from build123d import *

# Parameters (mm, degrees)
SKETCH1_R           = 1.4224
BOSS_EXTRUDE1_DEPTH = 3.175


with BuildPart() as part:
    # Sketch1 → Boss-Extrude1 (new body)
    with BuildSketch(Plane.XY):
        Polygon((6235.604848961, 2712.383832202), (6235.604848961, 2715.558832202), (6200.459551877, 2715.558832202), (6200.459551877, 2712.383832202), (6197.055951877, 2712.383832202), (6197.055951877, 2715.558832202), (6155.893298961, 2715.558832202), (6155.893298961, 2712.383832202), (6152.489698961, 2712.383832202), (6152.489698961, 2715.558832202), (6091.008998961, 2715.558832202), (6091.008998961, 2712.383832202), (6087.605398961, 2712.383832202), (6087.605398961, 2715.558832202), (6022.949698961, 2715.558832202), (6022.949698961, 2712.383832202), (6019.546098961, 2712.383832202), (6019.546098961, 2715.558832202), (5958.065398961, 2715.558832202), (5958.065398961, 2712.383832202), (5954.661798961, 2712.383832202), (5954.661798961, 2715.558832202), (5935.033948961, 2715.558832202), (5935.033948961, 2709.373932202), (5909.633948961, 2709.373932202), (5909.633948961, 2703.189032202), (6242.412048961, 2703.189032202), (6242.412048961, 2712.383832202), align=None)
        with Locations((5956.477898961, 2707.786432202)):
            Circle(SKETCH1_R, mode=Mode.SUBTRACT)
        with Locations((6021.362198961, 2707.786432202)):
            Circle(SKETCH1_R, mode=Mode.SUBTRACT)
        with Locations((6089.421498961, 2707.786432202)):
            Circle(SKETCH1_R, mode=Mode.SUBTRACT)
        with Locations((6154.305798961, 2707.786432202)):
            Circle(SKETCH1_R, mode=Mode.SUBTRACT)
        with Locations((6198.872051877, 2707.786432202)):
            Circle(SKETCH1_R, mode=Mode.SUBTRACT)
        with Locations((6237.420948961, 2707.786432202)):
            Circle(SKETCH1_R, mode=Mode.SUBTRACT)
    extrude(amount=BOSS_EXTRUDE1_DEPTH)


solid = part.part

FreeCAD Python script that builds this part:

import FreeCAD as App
import Part
import Sketcher
Q = App.Units.Quantity

doc = App.newDocument("Part")
body = doc.addObject("PartDesign::Body", "Body")

# Sketch on XY plane
sketch1 = body.newObject("Sketcher::SketchObject", "Sketch")
sketch1.AttachmentSupport = (doc.getObject("XY_Plane"), [""])
sketch1.MapMode = "FlatFace"
sketch1.addGeometry(Part.LineSegment(App.Vector(6235.6, 2712.4, 0), App.Vector(6235.6, 2715.6, 0)), False)
sketch1.addGeometry(Part.LineSegment(App.Vector(6235.6, 2715.6, 0), App.Vector(6200.5, 2715.6, 0)), False)
sketch1.addGeometry(Part.LineSegment(App.Vector(6200.5, 2715.6, 0), App.Vector(6200.5, 2712.4, 0)), False)
sketch1.addGeometry(Part.LineSegment(App.Vector(6200.5, 2712.4, 0), App.Vector(6197.1, 2712.4, 0)), False)
sketch1.addGeometry(Part.LineSegment(App.Vector(6197.1, 2712.4, 0), App.Vector(6197.1, 2715.6, 0)), False)
sketch1.addGeometry(Part.LineSegment(App.Vector(6197.1, 2715.6, 0), App.Vector(6155.9, 2715.6, 0)), False)
sketch1.addGeometry(Part.LineSegment(App.Vector(6155.9, 2715.6, 0), App.Vector(6155.9, 2712.4, 0)), False)
sketch1.addGeometry(Part.LineSegment(App.Vector(6155.9, 2712.4, 0), App.Vector(6152.5, 2712.4, 0)), False)
sketch1.addGeometry(Part.LineSegment(App.Vector(6152.5, 2712.4, 0), App.Vector(6152.5, 2715.6, 0)), False)
sketch1.addGeometry(Part.LineSegment(App.Vector(6152.5, 2715.6, 0), App.Vector(6091, 2715.6, 0)), False)
sketch1.addGeometry(Part.LineSegment(App.Vector(6091, 2715.6, 0), App.Vector(6091, 2712.4, 0)), False)
sketch1.addGeometry(Part.LineSegment(App.Vector(6091, 2712.4, 0), App.Vector(6087.6, 2712.4, 0)), False)
sketch1.addGeometry(Part.LineSegment(App.Vector(6087.6, 2712.4, 0), App.Vector(6087.6, 2715.6, 0)), False)
sketch1.addGeometry(Part.LineSegment(App.Vector(6087.6, 2715.6, 0), App.Vector(6022.9, 2715.6, 0)), False)
sketch1.addGeometry(Part.LineSegment(App.Vector(6022.9, 2715.6, 0), App.Vector(6022.9, 2712.4, 0)), False)
sketch1.addGeometry(Part.LineSegment(App.Vector(6022.9, 2712.4, 0), App.Vector(6019.5, 2712.4, 0)), False)
sketch1.addGeometry(Part.LineSegment(App.Vector(6019.5, 2712.4, 0), App.Vector(6019.5, 2715.6, 0)), False)
sketch1.addGeometry(Part.LineSegment(App.Vector(6019.5, 2715.6, 0), App.Vector(5958.1, 2715.6, 0)), False)
sketch1.addGeometry(Part.LineSegment(App.Vector(5958.1, 2715.6, 0), App.Vector(5958.1, 2712.4, 0)), False)
sketch1.addGeometry(Part.LineSegment(App.Vector(5958.1, 2712.4, 0), App.Vector(5954.7, 2712.4, 0)), False)
sketch1.addGeometry(Part.LineSegment(App.Vector(5954.7, 2712.4, 0), App.Vector(5954.7, 2715.6, 0)), False)
sketch1.addGeometry(Part.LineSegment(App.Vector(5954.7, 2715.6, 0), App.Vector(5935, 2715.6, 0)), False)
sketch1.addGeometry(Part.LineSegment(App.Vector(5935, 2715.6, 0), App.Vector(5935, 2709.4, 0)), False)
sketch1.addGeometry(Part.LineSegment(App.Vector(5935, 2709.4, 0), App.Vector(5909.6, 2709.4, 0)), False)
sketch1.addGeometry(Part.LineSegment(App.Vector(5909.6, 2709.4, 0), App.Vector(5909.6, 2703.2, 0)), False)
sketch1.addGeometry(Part.LineSegment(App.Vector(5909.6, 2703.2, 0), App.Vector(6242.4, 2703.2, 0)), False)
sketch1.addGeometry(Part.LineSegment(App.Vector(6242.4, 2703.2, 0), App.Vector(6242.4, 2712.4, 0)), False)
sketch1.addGeometry(Part.LineSegment(App.Vector(6242.4, 2712.4, 0), App.Vector(6235.6, 2712.4, 0)), False)
sketch1.addGeometry(Part.Circle(App.Vector(5956.5, 2707.8, 0), App.Vector(0, 0, 1), 1.4), False)
sketch1.addGeometry(Part.Circle(App.Vector(6021.4, 2707.8, 0), App.Vector(0, 0, 1), 1.4), False)
sketch1.addGeometry(Part.Circle(App.Vector(6089.4, 2707.8, 0), App.Vector(0, 0, 1), 1.4), False)
sketch1.addGeometry(Part.Circle(App.Vector(6154.3, 2707.8, 0), App.Vector(0, 0, 1), 1.4), False)
sketch1.addGeometry(Part.Circle(App.Vector(6198.9, 2707.8, 0), App.Vector(0, 0, 1), 1.4), False)
sketch1.addGeometry(Part.Circle(App.Vector(6237.4, 2707.8, 0), App.Vector(0, 0, 1), 1.4), False)
sketch1.addConstraint(Sketcher.Constraint("Coincident", 0, 2, 1, 1))
sketch1.addConstraint(Sketcher.Constraint("Coincident", 1, 2, 2, 1))
sketch1.addConstraint(Sketcher.Constraint("Coincident", 2, 2, 3, 1))
sketch1.addConstraint(Sketcher.Constraint("Coincident", 3, 2, 4, 1))
sketch1.addConstraint(Sketcher.Constraint("Coincident", 4, 2, 5, 1))
sketch1.addConstraint(Sketcher.Constraint("Coincident", 5, 2, 6, 1))
sketch1.addConstraint(Sketcher.Constraint("Coincident", 6, 2, 7, 1))
sketch1.addConstraint(Sketcher.Constraint("Coincident", 7, 2, 8, 1))
sketch1.addConstraint(Sketcher.Constraint("Coincident", 8, 2, 9, 1))
sketch1.addConstraint(Sketcher.Constraint("Coincident", 9, 2, 10, 1))
sketch1.addConstraint(Sketcher.Constraint("Coincident", 10, 2, 11, 1))
sketch1.addConstraint(Sketcher.Constraint("Coincident", 11, 2, 12, 1))
sketch1.addConstraint(Sketcher.Constraint("Coincident", 12, 2, 13, 1))
sketch1.addConstraint(Sketcher.Constraint("Coincident", 13, 2, 14, 1))
sketch1.addConstraint(Sketcher.Constraint("Coincident", 14, 2, 15, 1))
sketch1.addConstraint(Sketcher.Constraint("Coincident", 15, 2, 16, 1))
sketch1.addConstraint(Sketcher.Constraint("Coincident", 16, 2, 17, 1))
sketch1.addConstraint(Sketcher.Constraint("Coincident", 17, 2, 18, 1))
sketch1.addConstraint(Sketcher.Constraint("Coincident", 18, 2, 19, 1))
sketch1.addConstraint(Sketcher.Constraint("Coincident", 19, 2, 20, 1))
sketch1.addConstraint(Sketcher.Constraint("Coincident", 20, 2, 21, 1))
sketch1.addConstraint(Sketcher.Constraint("Coincident", 21, 2, 22, 1))
sketch1.addConstraint(Sketcher.Constraint("Coincident", 22, 2, 23, 1))
sketch1.addConstraint(Sketcher.Constraint("Coincident", 23, 2, 24, 1))
sketch1.addConstraint(Sketcher.Constraint("Coincident", 24, 2, 25, 1))
sketch1.addConstraint(Sketcher.Constraint("Coincident", 25, 2, 26, 1))
sketch1.addConstraint(Sketcher.Constraint("Coincident", 26, 2, 27, 1))
sketch1.addConstraint(Sketcher.Constraint("Coincident", 27, 2, 0, 1))
sketch1.addConstraint(Sketcher.Constraint("Vertical", 0))
sketch1.addConstraint(Sketcher.Constraint("Horizontal", 1))
sketch1.addConstraint(Sketcher.Constraint("Vertical", 2))
sketch1.addConstraint(Sketcher.Constraint("Horizontal", 3))
sketch1.addConstraint(Sketcher.Constraint("Vertical", 4))
sketch1.addConstraint(Sketcher.Constraint("Horizontal", 5))
sketch1.addConstraint(Sketcher.Constraint("Vertical", 6))
sketch1.addConstraint(Sketcher.Constraint("Horizontal", 7))
sketch1.addConstraint(Sketcher.Constraint("Vertical", 8))
sketch1.addConstraint(Sketcher.Constraint("Horizontal", 9))
sketch1.addConstraint(Sketcher.Constraint("Vertical", 10))
sketch1.addConstraint(Sketcher.Constraint("Horizontal", 11))
sketch1.addConstraint(Sketcher.Constraint("Vertical", 12))
sketch1.addConstraint(Sketcher.Constraint("Horizontal", 13))
sketch1.addConstraint(Sketcher.Constraint("Vertical", 14))
sketch1.addConstraint(Sketcher.Constraint("Horizontal", 15))
sketch1.addConstraint(Sketcher.Constraint("Vertical", 16))
sketch1.addConstraint(Sketcher.Constraint("Horizontal", 17))
sketch1.addConstraint(Sketcher.Constraint("Vertical", 18))
sketch1.addConstraint(Sketcher.Constraint("Horizontal", 19))
sketch1.addConstraint(Sketcher.Constraint("Vertical", 20))
sketch1.addConstraint(Sketcher.Constraint("Horizontal", 21))
sketch1.addConstraint(Sketcher.Constraint("Vertical", 22))
sketch1.addConstraint(Sketcher.Constraint("Horizontal", 23))
sketch1.addConstraint(Sketcher.Constraint("Vertical", 24))
sketch1.addConstraint(Sketcher.Constraint("Horizontal", 25))
sketch1.addConstraint(Sketcher.Constraint("Vertical", 26))
sketch1.addConstraint(Sketcher.Constraint("Horizontal", 27))
sketch1.addConstraint(Sketcher.Constraint("Equal", 28, 29))
sketch1.addConstraint(Sketcher.Constraint("Equal", 29, 30))
sketch1.addConstraint(Sketcher.Constraint("Equal", 30, 31))
sketch1.addConstraint(Sketcher.Constraint("Equal", 31, 32))
sketch1.addConstraint(Sketcher.Constraint("Equal", 32, 33))
sketch1.addConstraint(Sketcher.Constraint("Horizontal", 28, 3, 29, 3))
sketch1.addConstraint(Sketcher.Constraint("Horizontal", 29, 3, 30, 3))
sketch1.addConstraint(Sketcher.Constraint("Horizontal", 30, 3, 31, 3))
sketch1.addConstraint(Sketcher.Constraint("Horizontal", 31, 3, 32, 3))
sketch1.addConstraint(Sketcher.Constraint("Horizontal", 32, 3, 33, 3))
sketch1.addConstraint(Sketcher.Constraint("Horizontal", 1, 2, 4, 2))
sketch1.addConstraint(Sketcher.Constraint("Horizontal", 3, 2, 6, 2))
sketch1.addConstraint(Sketcher.Constraint("Horizontal", 5, 2, 8, 2))
sketch1.addConstraint(Sketcher.Constraint("Horizontal", 7, 2, 10, 2))
sketch1.addConstraint(Sketcher.Constraint("Horizontal", 9, 2, 12, 2))
sketch1.addConstraint(Sketcher.Constraint("Horizontal", 11, 2, 14, 2))
sketch1.addConstraint(Sketcher.Constraint("Horizontal", 13, 2, 16, 2))
sketch1.addConstraint(Sketcher.Constraint("Horizontal", 15, 2, 18, 2))
sketch1.addConstraint(Sketcher.Constraint("Horizontal", 17, 2, 20, 2))
sketch1.addConstraint(Sketcher.Constraint("Horizontal", 19, 2, 26, 2))
sketch1.addConstraint(Sketcher.Constraint("Equal", 3, 7))
sketch1.addConstraint(Sketcher.Constraint("Equal", 7, 11))
sketch1.addConstraint(Sketcher.Constraint("Equal", 11, 15))
sketch1.addConstraint(Sketcher.Constraint("Equal", 9, 17))
sketch1.addConstraint(Sketcher.Constraint("Equal", 15, 19))
sketch1.addConstraint(Sketcher.Constraint("Equal", 22, 24))
sketch1.addConstraint(Sketcher.Constraint("DistanceX", 23, 2, 23, 1, Q("1 in")))
sketch1.addConstraint(Sketcher.Constraint("Diameter", 28, Q("0.112 in")))
sketch1.addConstraint(Sketcher.Constraint("DistanceX", 3, 2, 3, 1, Q("0.134 in")))
sketch1.addConstraint(Sketcher.Constraint("DistanceX", 27, 2, 27, 1, Q("0.268 in")))
sketch1.addConstraint(Sketcher.Constraint("DistanceY", 0, 1, 0, 2, Q("0.125 in")))
sketch1.addConstraint(Sketcher.Constraint("DistanceY", 26, 1, 26, 2, Q("0.362 in")))
sketch1.addConstraint(Sketcher.Constraint("DistanceX", 9, 2, 9, 1, Q("2.4205 in")))
sketch1.addConstraint(Sketcher.Constraint("DistanceX", 13, 2, 13, 1, Q("2.5455 in")))
sketch1.addConstraint(Sketcher.Constraint("DistanceX", 25, 1, 25, 2, Q("13.1015 in")))
sketch1.addConstraint(Sketcher.Constraint("DistanceX", 28, 3, 30, 3, Q("5.234 in")))
sketch1.addConstraint(Sketcher.Constraint("DistanceX", 29, 3, 31, 3, Q("5.234 in")))
sketch1.addConstraint(Sketcher.Constraint("DistanceY", 33, 3, 0, 2, Q("0.306 in")))
sketch1.addConstraint(Sketcher.Constraint("DistanceX", 32, 3, 1, 2, Q("0.0625 in")))
sketch1.addConstraint(Sketcher.Constraint("DistanceX", 31, 3, 5, 2, Q("0.0625 in")))
sketch1.addConstraint(Sketcher.Constraint("DistanceX", 30, 3, 9, 2, Q("0.0625 in")))
sketch1.addConstraint(Sketcher.Constraint("DistanceX", 0, 2, 33, 3, Q("0.0715 in")))
sketch1.addConstraint(Sketcher.Constraint("DistanceX", 21, 2, 21, 1, 19.62785))
sketch1.addConstraint(Sketcher.Constraint("DistanceX", -1, 1, 28, 3, 5956.477899))
sketch1.addConstraint(Sketcher.Constraint("DistanceX", 1, 2, 1, 1, 35.145297))
sketch1.addConstraint(Sketcher.Constraint("DistanceY", -1, 1, 28, 3, 2707.786432))
pad1 = body.newObject("PartDesign::Pad", "Pad")
pad1.Profile = sketch1
pad1.Length = Q("0.125 in")

doc.recompute()
